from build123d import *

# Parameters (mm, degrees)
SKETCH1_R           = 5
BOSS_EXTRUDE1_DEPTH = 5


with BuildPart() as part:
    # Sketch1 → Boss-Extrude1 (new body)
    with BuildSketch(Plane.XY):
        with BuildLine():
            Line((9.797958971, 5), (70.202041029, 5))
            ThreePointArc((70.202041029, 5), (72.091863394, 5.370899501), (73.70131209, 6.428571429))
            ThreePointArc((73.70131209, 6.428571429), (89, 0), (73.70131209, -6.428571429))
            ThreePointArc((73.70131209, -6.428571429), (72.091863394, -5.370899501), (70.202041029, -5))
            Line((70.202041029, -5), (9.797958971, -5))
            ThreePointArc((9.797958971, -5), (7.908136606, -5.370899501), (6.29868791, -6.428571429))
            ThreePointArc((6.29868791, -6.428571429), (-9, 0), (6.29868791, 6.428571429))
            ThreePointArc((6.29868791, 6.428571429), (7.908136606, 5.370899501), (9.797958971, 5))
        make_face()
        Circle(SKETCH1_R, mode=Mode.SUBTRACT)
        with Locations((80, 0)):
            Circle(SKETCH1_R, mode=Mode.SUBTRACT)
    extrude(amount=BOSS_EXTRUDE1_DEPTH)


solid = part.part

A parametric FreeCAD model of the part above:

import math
import FreeCAD as App
import Part
import Sketcher
from FreeCAD import Vector
Q = App.Units.Quantity

doc = App.newDocument("Part")
body = doc.addObject("PartDesign::Body", "Body")

sketch1 = body.newObject("Sketcher::SketchObject", "Sketch")
sketch1.AttachmentSupport = (doc.getObject("XY_Plane"), [""])
sketch1.MapMode = "FlatFace"
sketch1.addGeometry(Part.LineSegment(Vector(70.2, 5, 0), Vector(9.8, 5, 0)), False)
sketch1.addGeometry(Part.ArcOfCircle(Part.Circle(Vector(9.8, 10, 0), Vector(0, 0, 1), 5), math.radians(-134), math.radians(-90)), False)
sketch1.addGeometry(Part.ArcOfCircle(Part.Circle(Vector(0, 0, 0), Vector(0, 0, 1), 9), math.radians(46), math.radians(314)), False)
sketch1.addGeometry(Part.ArcOfCircle(Part.Circle(Vector(9.8, -10, 0), Vector(0, 0, 1), 5), math.radians(90), math.radians(134)), False)
sketch1.addGeometry(Part.LineSegment(Vector(9.8, -5, 0), Vector(70.2, -5, 0)), False)
sketch1.addGeometry(Part.ArcOfCircle(Part.Circle(Vector(70.2, -10, 0), Vector(0, 0, 1), 5), math.radians(46), math.radians(90)), False)
sketch1.addGeometry(Part.ArcOfCircle(Part.Circle(Vector(80, 0, 0), Vector(0, 0, 1), 9), math.radians(-134), math.radians(134)), False)
sketch1.addGeometry(Part.ArcOfCircle(Part.Circle(Vector(70.2, 10, 0), Vector(0, 0, 1), 5), math.radians(-90), math.radians(-46)), False)
sketch1.addGeometry(Part.Circle(Vector(80, 0, 0), Vector(0, 0, 1), 5), False)
sketch1.addGeometry(Part.Circle(Vector(0, 0, 0), Vector(0, 0, 1), 5), False)
sketch1.addConstraint(Sketcher.Constraint("Tangent", 0, 2, 1, 2))
sketch1.addConstraint(Sketcher.Constraint("Tangent", 1, 1, 2, 1))
sketch1.addConstraint(Sketcher.Constraint("Tangent", 2, 2, 3, 2))
sketch1.addConstraint(Sketcher.Constraint("Tangent", 3, 1, 4, 1))
sketch1.addConstraint(Sketcher.Constraint("Tangent", 4, 2, 5, 2))
sketch1.addConstraint(Sketcher.Constraint("Tangent", 5, 1, 6, 1))
sketch1.addConstraint(Sketcher.Constraint("Tangent", 6, 2, 7, 2))
sketch1.addConstraint(Sketcher.Constraint("Tangent", 7, 1, 0, 1))
sketch1.addConstraint(Sketcher.Constraint("Horizontal", 0))
sketch1.addConstraint(Sketcher.Constraint("Horizontal", 4))
sketch1.addConstraint(Sketcher.Constraint("Coincident", 2, 3, -1, 1))
sketch1.addConstraint(Sketcher.Constraint("Coincident", 9, 3, -1, 1))
sketch1.addConstraint(Sketcher.Constraint("Coincident", 8, 3, 6, 3))
sketch1.addConstraint(Sketcher.Constraint("Equal", 1, 3))
sketch1.addConstraint(Sketcher.Constraint("Equal", 3, 5))
sketch1.addConstraint(Sketcher.Constraint("Equal", 2, 6))
sketch1.addConstraint(Sketcher.Constraint("Equal", 5, 7))
sketch1.addConstraint(Sketcher.Constraint("Equal", 7, 8))
sketch1.addConstraint(Sketcher.Constraint("Equal", 8, 9))
sketch1.addConstraint(Sketcher.Constraint("Symmetric", 5, 3, 7, 3, -1))
sketch1.addConstraint(Sketcher.Constraint("Diameter", 8, Q("10 mm")))
sketch1.addConstraint(Sketcher.Constraint("Radius", 2, Q("9 mm")))
sketch1.addConstraint(Sketcher.Constraint("DistanceY", -1, 1, 1, 3, Q("10 mm")))
sketch1.addConstraint(Sketcher.Constraint("DistanceX", -1, 1, 6, 3, Q("80 mm")))
pad1 = body.newObject("PartDesign::Pad", "Pad")
pad1.Profile = sketch1
pad1.Length = 5

doc.recompute()
